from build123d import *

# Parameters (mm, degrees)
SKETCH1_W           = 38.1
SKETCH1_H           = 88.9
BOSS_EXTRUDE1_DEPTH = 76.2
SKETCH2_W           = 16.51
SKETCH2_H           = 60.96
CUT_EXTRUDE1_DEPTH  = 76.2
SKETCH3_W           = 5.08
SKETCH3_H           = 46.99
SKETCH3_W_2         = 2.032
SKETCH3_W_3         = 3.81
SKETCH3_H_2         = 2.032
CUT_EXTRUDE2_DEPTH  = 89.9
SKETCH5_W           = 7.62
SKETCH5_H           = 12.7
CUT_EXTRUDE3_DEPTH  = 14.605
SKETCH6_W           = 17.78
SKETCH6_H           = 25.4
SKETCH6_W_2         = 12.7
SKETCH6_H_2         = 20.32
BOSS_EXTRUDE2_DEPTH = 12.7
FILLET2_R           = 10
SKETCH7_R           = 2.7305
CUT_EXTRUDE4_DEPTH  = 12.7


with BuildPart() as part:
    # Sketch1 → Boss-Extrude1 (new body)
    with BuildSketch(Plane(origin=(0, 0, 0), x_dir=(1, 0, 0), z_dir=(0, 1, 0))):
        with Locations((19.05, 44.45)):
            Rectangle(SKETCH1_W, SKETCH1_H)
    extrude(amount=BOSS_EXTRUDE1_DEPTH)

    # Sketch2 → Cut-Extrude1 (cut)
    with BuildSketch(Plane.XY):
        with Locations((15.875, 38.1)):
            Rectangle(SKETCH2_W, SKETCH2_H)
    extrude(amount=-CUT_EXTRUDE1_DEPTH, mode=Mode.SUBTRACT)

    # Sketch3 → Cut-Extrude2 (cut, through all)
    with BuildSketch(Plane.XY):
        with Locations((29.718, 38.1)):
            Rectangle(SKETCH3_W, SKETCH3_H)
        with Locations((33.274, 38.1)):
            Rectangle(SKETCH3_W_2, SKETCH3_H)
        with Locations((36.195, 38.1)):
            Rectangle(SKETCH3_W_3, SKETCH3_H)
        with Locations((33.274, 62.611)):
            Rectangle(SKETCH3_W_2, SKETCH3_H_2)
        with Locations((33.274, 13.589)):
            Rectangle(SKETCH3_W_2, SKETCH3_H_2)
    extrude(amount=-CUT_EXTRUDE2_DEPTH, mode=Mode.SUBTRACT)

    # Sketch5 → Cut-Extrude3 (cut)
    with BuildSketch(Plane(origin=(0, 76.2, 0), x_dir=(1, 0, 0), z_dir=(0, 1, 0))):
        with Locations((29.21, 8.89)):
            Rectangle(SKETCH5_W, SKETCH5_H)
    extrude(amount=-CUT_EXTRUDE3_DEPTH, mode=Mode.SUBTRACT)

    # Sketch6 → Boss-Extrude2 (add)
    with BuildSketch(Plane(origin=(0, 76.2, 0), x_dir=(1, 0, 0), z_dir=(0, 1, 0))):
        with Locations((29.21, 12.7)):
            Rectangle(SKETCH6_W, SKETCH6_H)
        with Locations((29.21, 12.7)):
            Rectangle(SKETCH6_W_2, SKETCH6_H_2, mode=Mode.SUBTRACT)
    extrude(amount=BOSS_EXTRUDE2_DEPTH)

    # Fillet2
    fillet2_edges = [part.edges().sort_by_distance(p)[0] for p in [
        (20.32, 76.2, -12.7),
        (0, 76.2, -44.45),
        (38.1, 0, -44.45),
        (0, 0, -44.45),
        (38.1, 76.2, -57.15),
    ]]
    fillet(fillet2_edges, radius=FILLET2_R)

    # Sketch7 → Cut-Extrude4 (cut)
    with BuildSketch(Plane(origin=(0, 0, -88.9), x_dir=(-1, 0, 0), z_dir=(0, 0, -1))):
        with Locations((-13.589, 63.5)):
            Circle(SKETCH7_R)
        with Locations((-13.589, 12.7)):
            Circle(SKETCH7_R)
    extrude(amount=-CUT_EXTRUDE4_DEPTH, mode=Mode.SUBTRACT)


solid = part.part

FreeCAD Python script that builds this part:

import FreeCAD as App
import Part
import Sketcher

V = App.Vector
Q = App.Units.Quantity


def edges_at(feature, points):
    """Names of the edges that pass closest to the given points."""
    edges = feature.Shape.Edges
    near = lambda p: min(range(len(edges)), key=lambda i: edges[i].distToShape(Part.Vertex(*p))[0])
    return sorted({f"Edge{near(p) + 1}" for p in points})

doc = App.newDocument("Part")
body = doc.addObject("PartDesign::Body", "Body")

sketch1 = body.newObject("Sketcher::SketchObject", "Sketch")
sketch1.AttachmentSupport = (doc.getObject("XZ_Plane"), [""])
sketch1.MapMode = "FlatFace"
sketch1.addGeometry([
    Part.LineSegment(V(0, -89, 0), V(0, 0, 0)),
    Part.LineSegment(V(0, 0, 0), V(38, 0, 0)),
    Part.LineSegment(V(38, 0, 0), V(38, -89, 0)),
    Part.LineSegment(V(38, -89, 0), V(0, -89, 0)),
], False)
sketch1.addConstraint([
    Sketcher.Constraint("Coincident", 0, 2, 1, 1),
    Sketcher.Constraint("Coincident", 1, 2, 2, 1),
    Sketcher.Constraint("Coincident", 2, 2, 3, 1),
    Sketcher.Constraint("Coincident", 3, 2, 0, 1),
    Sketcher.Constraint("Vertical", 0),
    Sketcher.Constraint("Horizontal", 1),
    Sketcher.Constraint("Vertical", 2),
    Sketcher.Constraint("Horizontal", 3),
    Sketcher.Constraint("Coincident", 0, 2, -1, 1),
    Sketcher.Constraint("DistanceX", 1, 1, 1, 2, Q("1.5 in")),
    Sketcher.Constraint("DistanceY", 0, 1, 0, 2, Q("3.5 in")),
])
pad1 = body.newObject("PartDesign::Pad", "Pad")
pad1.Profile = sketch1
pad1.Length = Q("3 in")
pad1.Reversed = True

sketch2 = body.newObject("Sketcher::SketchObject", "Sketch001")
sketch2.AttachmentSupport = (doc.getObject("XY_Plane"), [""])
sketch2.MapMode = "FlatFace"
sketch2.addGeometry([
    Part.LineSegment(V(8, 69, 0), V(8, 8, 0)),
    Part.LineSegment(V(8, 8, 0), V(24, 8, 0)),
    Part.LineSegment(V(24, 8, 0), V(24, 69, 0)),
    Part.LineSegment(V(24, 69, 0), V(8, 69, 0)),
], False)
sketch2.addConstraint([
    Sketcher.Constraint("Coincident", 0, 2, 1, 1),
    Sketcher.Constraint("Coincident", 1, 2, 2, 1),
    Sketcher.Constraint("Coincident", 2, 2, 3, 1),
    Sketcher.Constraint("Coincident", 3, 2, 0, 1),
    Sketcher.Constraint("Vertical", 0),
    Sketcher.Constraint("Horizontal", 1),
    Sketcher.Constraint("Vertical", 2),
    Sketcher.Constraint("Horizontal", 3),
    Sketcher.Constraint("DistanceY", 0, 2, 0, 1, Q("2.4 in")),
    Sketcher.Constraint("DistanceX", 1, 1, 1, 2, Q("0.65 in")),
    Sketcher.Constraint("DistanceX", -1, 1, 0, 2, Q("0.3 in")),
    Sketcher.Constraint("DistanceY", -1, 1, 0, 2, Q("0.3 in")),
])
pocket1 = body.newObject("PartDesign::Pocket", "Pocket")
pocket1.Profile = sketch2
pocket1.Length = Q("3 in")

sketch3 = body.newObject("Sketcher::SketchObject", "Sketch002")
sketch3.AttachmentSupport = (doc.getObject("XY_Plane"), [""])
sketch3.MapMode = "FlatFace"
sketch3.addGeometry([
    Part.LineSegment(V(27.2, 61.6, 0), V(27.2, 14.6, 0)),
    Part.LineSegment(V(27.2, 14.6, 0), V(32.3, 14.6, 0)),
    Part.LineSegment(V(32.3, 14.6, 0), V(32.3, 12.6, 0)),
    Part.LineSegment(V(32.3, 12.6, 0), V(34.3, 12.6, 0)),
    Part.LineSegment(V(34.3, 12.6, 0), V(34.3, 14.6, 0)),
    Part.LineSegment(V(34.3, 14.6, 0), V(38.1, 14.6, 0)),
    Part.LineSegment(V(38.1, 14.6, 0), V(38.1, 61.6, 0)),
    Part.LineSegment(V(38.1, 61.6, 0), V(34.3, 61.6, 0)),
    Part.LineSegment(V(34.3, 61.6, 0), V(34.3, 63.6, 0)),
    Part.LineSegment(V(34.3, 63.6, 0), V(32.3, 63.6, 0)),
    Part.LineSegment(V(32.3, 63.6, 0), V(32.3, 61.6, 0)),
    Part.LineSegment(V(32.3, 61.6, 0), V(27.2, 61.6, 0)),
], False)
sketch3.addConstraint([
    Sketcher.Constraint("Coincident", 0, 2, 1, 1),
    Sketcher.Constraint("Coincident", 1, 2, 2, 1),
    Sketcher.Constraint("Coincident", 2, 2, 3, 1),
    Sketcher.Constraint("Coincident", 3, 2, 4, 1),
    Sketcher.Constraint("Coincident", 4, 2, 5, 1),
    Sketcher.Constraint("Coincident", 5, 2, 6, 1),
    Sketcher.Constraint("Coincident", 6, 2, 7, 1),
    Sketcher.Constraint("Coincident", 7, 2, 8, 1),
    Sketcher.Constraint("Coincident", 8, 2, 9, 1),
    Sketcher.Constraint("Coincident", 9, 2, 10, 1),
    Sketcher.Constraint("Coincident", 10, 2, 11, 1),
    Sketcher.Constraint("Coincident", 11, 2, 0, 1),
    Sketcher.Constraint("Vertical", 0),
    Sketcher.Constraint("Horizontal", 1),
    Sketcher.Constraint("Vertical", 2),
    Sketcher.Constraint("Horizontal", 3),
    Sketcher.Constraint("Vertical", 4),
    Sketcher.Constraint("Horizontal", 5),
    Sketcher.Constraint("Vertical", 6),
    Sketcher.Constraint("Horizontal", 7),
    Sketcher.Constraint("Vertical", 8),
    Sketcher.Constraint("Horizontal", 9),
    Sketcher.Constraint("Vertical", 10),
    Sketcher.Constraint("Horizontal", 11),
    Sketcher.Constraint("Horizontal", 1, 2, 4, 2),
    Sketcher.Constraint("Horizontal", 7, 2, 10, 2),
    Sketcher.Constraint("Vertical", 4, 2, 7, 2),
    Sketcher.Constraint("Vertical", 2, 2, 9, 2),
    Sketcher.Constraint("Equal", 9, 2),
    Sketcher.Constraint("Equal", 4, 8),
    Sketcher.Constraint("DistanceX", 1, 1, 1, 2, Q("0.2 in")),
    Sketcher.Constraint("DistanceX", 3, 1, 3, 2, Q("0.08 in")),
    Sketcher.Constraint("DistanceX", 5, 1, 5, 2, Q("0.15 in")),
    Sketcher.Constraint("DistanceY", 0, 2, 0, 1, Q("1.85 in")),
    Sketcher.Constraint("DistanceX", -1, 1, 5, 2, Q("1.5 in")),
    Sketcher.Constraint("DistanceY", -1, 1, 0, 2, Q("0.575 in")),
])
pocket2 = body.newObject("PartDesign::Pocket", "Pocket001")
pocket2.Profile = sketch3
pocket2.Type = "ThroughAll"

sketch4 = body.newObject("Sketcher::SketchObject", "Sketch003")
sketch4.AttachmentSupport = (doc.getObject("XZ_Plane"), [""])
sketch4.MapMode = "FlatFace"
sketch4.AttachmentOffset = App.Placement(V(0, 0, -3 * 25.4), App.Rotation())
sketch4.addGeometry([
    Part.LineSegment(V(25, -15, 0), V(25, -3, 0)),
    Part.LineSegment(V(25, -3, 0), V(33, -3, 0)),
    Part.LineSegment(V(33, -3, 0), V(33, -15, 0)),
    Part.LineSegment(V(33, -15, 0), V(25, -15, 0)),
], False)
sketch4.addConstraint([
    Sketcher.Constraint("Coincident", 0, 2, 1, 1),
    Sketcher.Constraint("Coincident", 1, 2, 2, 1),
    Sketcher.Constraint("Coincident", 2, 2, 3, 1),
    Sketcher.Constraint("Coincident", 3, 2, 0, 1),
    Sketcher.Constraint("Vertical", 0),
    Sketcher.Constraint("Horizontal", 1),
    Sketcher.Constraint("Vertical", 2),
    Sketcher.Constraint("Horizontal", 3),
    Sketcher.Constraint("DistanceX", 1, 1, 1, 2, Q("0.3 in")),
    Sketcher.Constraint("DistanceY", 0, 1, 0, 2, Q("0.5 in")),
    Sketcher.Constraint("DistanceX", -1, 1, 0, 2, Q("1 in")),
    Sketcher.Constraint("DistanceY", 0, 2, -1, 1, Q("0.1 in")),
])
pocket3 = body.newObject("PartDesign::Pocket", "Pocket002")
pocket3.Profile = sketch4
pocket3.Length = Q("0.575 in")
pocket3.Reversed = True

sketch5 = body.newObject("Sketcher::SketchObject", "Sketch004")
sketch5.AttachmentSupport = (doc.getObject("XZ_Plane"), [""])
sketch5.MapMode = "FlatFace"
sketch5.AttachmentOffset = App.Placement(V(0, 0, -3 * 25.4), App.Rotation())
sketch5.addGeometry([
    Part.LineSegment(V(20, -25, 0), V(20, 0, 0)),
    Part.LineSegment(V(20, 0, 0), V(38, 0, 0)),
    Part.LineSegment(V(38, 0, 0), V(38, -25, 0)),
    Part.LineSegment(V(38, -25, 0), V(20, -25, 0)),
    Part.LineSegment(V(36, -3, 0), V(23, -3, 0)),
    Part.LineSegment(V(23, -3, 0), V(23, -23, 0)),
    Part.LineSegment(V(23, -23, 0), V(36, -23, 0)),
    Part.LineSegment(V(36, -23, 0), V(36, -3, 0)),
], False)
sketch5.addConstraint([
    Sketcher.Constraint("Coincident", 0, 2, 1, 1),
    Sketcher.Constraint("Coincident", 1, 2, 2, 1),
    Sketcher.Constraint("Coincident", 2, 2, 3, 1),
    Sketcher.Constraint("Coincident", 3, 2, 0, 1),
    Sketcher.Constraint("Coincident", 4, 2, 5, 1),
    Sketcher.Constraint("Coincident", 5, 2, 6, 1),
    Sketcher.Constraint("Coincident", 6, 2, 7, 1),
    Sketcher.Constraint("Coincident", 7, 2, 4, 1),
    Sketcher.Constraint("Vertical", 0),
    Sketcher.Constraint("Horizontal", 1),
    Sketcher.Constraint("Vertical", 2),
    Sketcher.Constraint("Horizontal", 3),
    Sketcher.Constraint("Horizontal", 4),
    Sketcher.Constraint("Vertical", 5),
    Sketcher.Constraint("Horizontal", 6),
    Sketcher.Constraint("Vertical", 7),
    Sketcher.Constraint("PointOnObject", 0, 2, -1),
    Sketcher.Constraint("DistanceY", 0, 1, 0, 2, Q("1 in")),
    Sketcher.Constraint("DistanceX", 1, 1, 1, 2, Q("0.7 in")),
    Sketcher.Constraint("DistanceX", 4, 2, 4, 1, Q("0.5 in")),
    Sketcher.Constraint("DistanceY", 5, 2, 5, 1, Q("0.8 in")),
    Sketcher.Constraint("DistanceX", -1, 1, 0, 2, Q("0.8 in")),
    Sketcher.Constraint("DistanceX", -1, 1, 4, 2, Q("0.9 in")),
    Sketcher.Constraint("DistanceY", 4, 2, -1, 1, Q("0.1 in")),
])
pad2 = body.newObject("PartDesign::Pad", "Pad001")
pad2.Profile = sketch5
pad2.Length = Q("0.5 in")
pad2.Reversed = True
doc.recompute()

fillet = body.newObject("PartDesign::Fillet", "Fillet")
fillet.Base = (pad2, edges_at(pad2, [
    (20.32, 76.2, -12.7),
    (0, 76.2, -44.45),
    (38.1, 0, -44.45),
    (0, 0, -44.45),
    (38.1, 76.2, -57.15),
]))
fillet.Radius = 10

sketch6 = body.newObject("Sketcher::SketchObject", "Sketch005")
sketch6.AttachmentSupport = (doc.getObject("XY_Plane"), [""])
sketch6.MapMode = "FlatFace"
sketch6.AttachmentOffset = App.Placement(V(0, 0, -3.5 * 25.4), App.Rotation())
sketch6.addGeometry([
    Part.Circle(V(13.6, 63.5, 0), V(0, 0, 1), 2.7),
    Part.Circle(V(13.6, 12.7, 0), V(0, 0, 1), 2.7),
], False)
sketch6.addConstraint([
    Sketcher.Constraint("Equal", 0, 1),
    Sketcher.Constraint("Vertical", 0, 3, 1, 3),
    Sketcher.Constraint("Diameter", 0, Q("0.215 in")),
    Sketcher.Constraint("DistanceY", 1, 3, 0, 3, Q("2 in")),
    Sketcher.Constraint("DistanceY", -1, 1, 0, 3, Q("2.5 in")),
    Sketcher.Constraint("DistanceX", -1, 1, 0, 3, Q("0.535 in")),
])
pocket4 = body.newObject("PartDesign::Pocket", "Pocket003")
pocket4.Profile = sketch6
pocket4.Length = Q("0.5 in")
pocket4.Reversed = True

doc.recompute()
